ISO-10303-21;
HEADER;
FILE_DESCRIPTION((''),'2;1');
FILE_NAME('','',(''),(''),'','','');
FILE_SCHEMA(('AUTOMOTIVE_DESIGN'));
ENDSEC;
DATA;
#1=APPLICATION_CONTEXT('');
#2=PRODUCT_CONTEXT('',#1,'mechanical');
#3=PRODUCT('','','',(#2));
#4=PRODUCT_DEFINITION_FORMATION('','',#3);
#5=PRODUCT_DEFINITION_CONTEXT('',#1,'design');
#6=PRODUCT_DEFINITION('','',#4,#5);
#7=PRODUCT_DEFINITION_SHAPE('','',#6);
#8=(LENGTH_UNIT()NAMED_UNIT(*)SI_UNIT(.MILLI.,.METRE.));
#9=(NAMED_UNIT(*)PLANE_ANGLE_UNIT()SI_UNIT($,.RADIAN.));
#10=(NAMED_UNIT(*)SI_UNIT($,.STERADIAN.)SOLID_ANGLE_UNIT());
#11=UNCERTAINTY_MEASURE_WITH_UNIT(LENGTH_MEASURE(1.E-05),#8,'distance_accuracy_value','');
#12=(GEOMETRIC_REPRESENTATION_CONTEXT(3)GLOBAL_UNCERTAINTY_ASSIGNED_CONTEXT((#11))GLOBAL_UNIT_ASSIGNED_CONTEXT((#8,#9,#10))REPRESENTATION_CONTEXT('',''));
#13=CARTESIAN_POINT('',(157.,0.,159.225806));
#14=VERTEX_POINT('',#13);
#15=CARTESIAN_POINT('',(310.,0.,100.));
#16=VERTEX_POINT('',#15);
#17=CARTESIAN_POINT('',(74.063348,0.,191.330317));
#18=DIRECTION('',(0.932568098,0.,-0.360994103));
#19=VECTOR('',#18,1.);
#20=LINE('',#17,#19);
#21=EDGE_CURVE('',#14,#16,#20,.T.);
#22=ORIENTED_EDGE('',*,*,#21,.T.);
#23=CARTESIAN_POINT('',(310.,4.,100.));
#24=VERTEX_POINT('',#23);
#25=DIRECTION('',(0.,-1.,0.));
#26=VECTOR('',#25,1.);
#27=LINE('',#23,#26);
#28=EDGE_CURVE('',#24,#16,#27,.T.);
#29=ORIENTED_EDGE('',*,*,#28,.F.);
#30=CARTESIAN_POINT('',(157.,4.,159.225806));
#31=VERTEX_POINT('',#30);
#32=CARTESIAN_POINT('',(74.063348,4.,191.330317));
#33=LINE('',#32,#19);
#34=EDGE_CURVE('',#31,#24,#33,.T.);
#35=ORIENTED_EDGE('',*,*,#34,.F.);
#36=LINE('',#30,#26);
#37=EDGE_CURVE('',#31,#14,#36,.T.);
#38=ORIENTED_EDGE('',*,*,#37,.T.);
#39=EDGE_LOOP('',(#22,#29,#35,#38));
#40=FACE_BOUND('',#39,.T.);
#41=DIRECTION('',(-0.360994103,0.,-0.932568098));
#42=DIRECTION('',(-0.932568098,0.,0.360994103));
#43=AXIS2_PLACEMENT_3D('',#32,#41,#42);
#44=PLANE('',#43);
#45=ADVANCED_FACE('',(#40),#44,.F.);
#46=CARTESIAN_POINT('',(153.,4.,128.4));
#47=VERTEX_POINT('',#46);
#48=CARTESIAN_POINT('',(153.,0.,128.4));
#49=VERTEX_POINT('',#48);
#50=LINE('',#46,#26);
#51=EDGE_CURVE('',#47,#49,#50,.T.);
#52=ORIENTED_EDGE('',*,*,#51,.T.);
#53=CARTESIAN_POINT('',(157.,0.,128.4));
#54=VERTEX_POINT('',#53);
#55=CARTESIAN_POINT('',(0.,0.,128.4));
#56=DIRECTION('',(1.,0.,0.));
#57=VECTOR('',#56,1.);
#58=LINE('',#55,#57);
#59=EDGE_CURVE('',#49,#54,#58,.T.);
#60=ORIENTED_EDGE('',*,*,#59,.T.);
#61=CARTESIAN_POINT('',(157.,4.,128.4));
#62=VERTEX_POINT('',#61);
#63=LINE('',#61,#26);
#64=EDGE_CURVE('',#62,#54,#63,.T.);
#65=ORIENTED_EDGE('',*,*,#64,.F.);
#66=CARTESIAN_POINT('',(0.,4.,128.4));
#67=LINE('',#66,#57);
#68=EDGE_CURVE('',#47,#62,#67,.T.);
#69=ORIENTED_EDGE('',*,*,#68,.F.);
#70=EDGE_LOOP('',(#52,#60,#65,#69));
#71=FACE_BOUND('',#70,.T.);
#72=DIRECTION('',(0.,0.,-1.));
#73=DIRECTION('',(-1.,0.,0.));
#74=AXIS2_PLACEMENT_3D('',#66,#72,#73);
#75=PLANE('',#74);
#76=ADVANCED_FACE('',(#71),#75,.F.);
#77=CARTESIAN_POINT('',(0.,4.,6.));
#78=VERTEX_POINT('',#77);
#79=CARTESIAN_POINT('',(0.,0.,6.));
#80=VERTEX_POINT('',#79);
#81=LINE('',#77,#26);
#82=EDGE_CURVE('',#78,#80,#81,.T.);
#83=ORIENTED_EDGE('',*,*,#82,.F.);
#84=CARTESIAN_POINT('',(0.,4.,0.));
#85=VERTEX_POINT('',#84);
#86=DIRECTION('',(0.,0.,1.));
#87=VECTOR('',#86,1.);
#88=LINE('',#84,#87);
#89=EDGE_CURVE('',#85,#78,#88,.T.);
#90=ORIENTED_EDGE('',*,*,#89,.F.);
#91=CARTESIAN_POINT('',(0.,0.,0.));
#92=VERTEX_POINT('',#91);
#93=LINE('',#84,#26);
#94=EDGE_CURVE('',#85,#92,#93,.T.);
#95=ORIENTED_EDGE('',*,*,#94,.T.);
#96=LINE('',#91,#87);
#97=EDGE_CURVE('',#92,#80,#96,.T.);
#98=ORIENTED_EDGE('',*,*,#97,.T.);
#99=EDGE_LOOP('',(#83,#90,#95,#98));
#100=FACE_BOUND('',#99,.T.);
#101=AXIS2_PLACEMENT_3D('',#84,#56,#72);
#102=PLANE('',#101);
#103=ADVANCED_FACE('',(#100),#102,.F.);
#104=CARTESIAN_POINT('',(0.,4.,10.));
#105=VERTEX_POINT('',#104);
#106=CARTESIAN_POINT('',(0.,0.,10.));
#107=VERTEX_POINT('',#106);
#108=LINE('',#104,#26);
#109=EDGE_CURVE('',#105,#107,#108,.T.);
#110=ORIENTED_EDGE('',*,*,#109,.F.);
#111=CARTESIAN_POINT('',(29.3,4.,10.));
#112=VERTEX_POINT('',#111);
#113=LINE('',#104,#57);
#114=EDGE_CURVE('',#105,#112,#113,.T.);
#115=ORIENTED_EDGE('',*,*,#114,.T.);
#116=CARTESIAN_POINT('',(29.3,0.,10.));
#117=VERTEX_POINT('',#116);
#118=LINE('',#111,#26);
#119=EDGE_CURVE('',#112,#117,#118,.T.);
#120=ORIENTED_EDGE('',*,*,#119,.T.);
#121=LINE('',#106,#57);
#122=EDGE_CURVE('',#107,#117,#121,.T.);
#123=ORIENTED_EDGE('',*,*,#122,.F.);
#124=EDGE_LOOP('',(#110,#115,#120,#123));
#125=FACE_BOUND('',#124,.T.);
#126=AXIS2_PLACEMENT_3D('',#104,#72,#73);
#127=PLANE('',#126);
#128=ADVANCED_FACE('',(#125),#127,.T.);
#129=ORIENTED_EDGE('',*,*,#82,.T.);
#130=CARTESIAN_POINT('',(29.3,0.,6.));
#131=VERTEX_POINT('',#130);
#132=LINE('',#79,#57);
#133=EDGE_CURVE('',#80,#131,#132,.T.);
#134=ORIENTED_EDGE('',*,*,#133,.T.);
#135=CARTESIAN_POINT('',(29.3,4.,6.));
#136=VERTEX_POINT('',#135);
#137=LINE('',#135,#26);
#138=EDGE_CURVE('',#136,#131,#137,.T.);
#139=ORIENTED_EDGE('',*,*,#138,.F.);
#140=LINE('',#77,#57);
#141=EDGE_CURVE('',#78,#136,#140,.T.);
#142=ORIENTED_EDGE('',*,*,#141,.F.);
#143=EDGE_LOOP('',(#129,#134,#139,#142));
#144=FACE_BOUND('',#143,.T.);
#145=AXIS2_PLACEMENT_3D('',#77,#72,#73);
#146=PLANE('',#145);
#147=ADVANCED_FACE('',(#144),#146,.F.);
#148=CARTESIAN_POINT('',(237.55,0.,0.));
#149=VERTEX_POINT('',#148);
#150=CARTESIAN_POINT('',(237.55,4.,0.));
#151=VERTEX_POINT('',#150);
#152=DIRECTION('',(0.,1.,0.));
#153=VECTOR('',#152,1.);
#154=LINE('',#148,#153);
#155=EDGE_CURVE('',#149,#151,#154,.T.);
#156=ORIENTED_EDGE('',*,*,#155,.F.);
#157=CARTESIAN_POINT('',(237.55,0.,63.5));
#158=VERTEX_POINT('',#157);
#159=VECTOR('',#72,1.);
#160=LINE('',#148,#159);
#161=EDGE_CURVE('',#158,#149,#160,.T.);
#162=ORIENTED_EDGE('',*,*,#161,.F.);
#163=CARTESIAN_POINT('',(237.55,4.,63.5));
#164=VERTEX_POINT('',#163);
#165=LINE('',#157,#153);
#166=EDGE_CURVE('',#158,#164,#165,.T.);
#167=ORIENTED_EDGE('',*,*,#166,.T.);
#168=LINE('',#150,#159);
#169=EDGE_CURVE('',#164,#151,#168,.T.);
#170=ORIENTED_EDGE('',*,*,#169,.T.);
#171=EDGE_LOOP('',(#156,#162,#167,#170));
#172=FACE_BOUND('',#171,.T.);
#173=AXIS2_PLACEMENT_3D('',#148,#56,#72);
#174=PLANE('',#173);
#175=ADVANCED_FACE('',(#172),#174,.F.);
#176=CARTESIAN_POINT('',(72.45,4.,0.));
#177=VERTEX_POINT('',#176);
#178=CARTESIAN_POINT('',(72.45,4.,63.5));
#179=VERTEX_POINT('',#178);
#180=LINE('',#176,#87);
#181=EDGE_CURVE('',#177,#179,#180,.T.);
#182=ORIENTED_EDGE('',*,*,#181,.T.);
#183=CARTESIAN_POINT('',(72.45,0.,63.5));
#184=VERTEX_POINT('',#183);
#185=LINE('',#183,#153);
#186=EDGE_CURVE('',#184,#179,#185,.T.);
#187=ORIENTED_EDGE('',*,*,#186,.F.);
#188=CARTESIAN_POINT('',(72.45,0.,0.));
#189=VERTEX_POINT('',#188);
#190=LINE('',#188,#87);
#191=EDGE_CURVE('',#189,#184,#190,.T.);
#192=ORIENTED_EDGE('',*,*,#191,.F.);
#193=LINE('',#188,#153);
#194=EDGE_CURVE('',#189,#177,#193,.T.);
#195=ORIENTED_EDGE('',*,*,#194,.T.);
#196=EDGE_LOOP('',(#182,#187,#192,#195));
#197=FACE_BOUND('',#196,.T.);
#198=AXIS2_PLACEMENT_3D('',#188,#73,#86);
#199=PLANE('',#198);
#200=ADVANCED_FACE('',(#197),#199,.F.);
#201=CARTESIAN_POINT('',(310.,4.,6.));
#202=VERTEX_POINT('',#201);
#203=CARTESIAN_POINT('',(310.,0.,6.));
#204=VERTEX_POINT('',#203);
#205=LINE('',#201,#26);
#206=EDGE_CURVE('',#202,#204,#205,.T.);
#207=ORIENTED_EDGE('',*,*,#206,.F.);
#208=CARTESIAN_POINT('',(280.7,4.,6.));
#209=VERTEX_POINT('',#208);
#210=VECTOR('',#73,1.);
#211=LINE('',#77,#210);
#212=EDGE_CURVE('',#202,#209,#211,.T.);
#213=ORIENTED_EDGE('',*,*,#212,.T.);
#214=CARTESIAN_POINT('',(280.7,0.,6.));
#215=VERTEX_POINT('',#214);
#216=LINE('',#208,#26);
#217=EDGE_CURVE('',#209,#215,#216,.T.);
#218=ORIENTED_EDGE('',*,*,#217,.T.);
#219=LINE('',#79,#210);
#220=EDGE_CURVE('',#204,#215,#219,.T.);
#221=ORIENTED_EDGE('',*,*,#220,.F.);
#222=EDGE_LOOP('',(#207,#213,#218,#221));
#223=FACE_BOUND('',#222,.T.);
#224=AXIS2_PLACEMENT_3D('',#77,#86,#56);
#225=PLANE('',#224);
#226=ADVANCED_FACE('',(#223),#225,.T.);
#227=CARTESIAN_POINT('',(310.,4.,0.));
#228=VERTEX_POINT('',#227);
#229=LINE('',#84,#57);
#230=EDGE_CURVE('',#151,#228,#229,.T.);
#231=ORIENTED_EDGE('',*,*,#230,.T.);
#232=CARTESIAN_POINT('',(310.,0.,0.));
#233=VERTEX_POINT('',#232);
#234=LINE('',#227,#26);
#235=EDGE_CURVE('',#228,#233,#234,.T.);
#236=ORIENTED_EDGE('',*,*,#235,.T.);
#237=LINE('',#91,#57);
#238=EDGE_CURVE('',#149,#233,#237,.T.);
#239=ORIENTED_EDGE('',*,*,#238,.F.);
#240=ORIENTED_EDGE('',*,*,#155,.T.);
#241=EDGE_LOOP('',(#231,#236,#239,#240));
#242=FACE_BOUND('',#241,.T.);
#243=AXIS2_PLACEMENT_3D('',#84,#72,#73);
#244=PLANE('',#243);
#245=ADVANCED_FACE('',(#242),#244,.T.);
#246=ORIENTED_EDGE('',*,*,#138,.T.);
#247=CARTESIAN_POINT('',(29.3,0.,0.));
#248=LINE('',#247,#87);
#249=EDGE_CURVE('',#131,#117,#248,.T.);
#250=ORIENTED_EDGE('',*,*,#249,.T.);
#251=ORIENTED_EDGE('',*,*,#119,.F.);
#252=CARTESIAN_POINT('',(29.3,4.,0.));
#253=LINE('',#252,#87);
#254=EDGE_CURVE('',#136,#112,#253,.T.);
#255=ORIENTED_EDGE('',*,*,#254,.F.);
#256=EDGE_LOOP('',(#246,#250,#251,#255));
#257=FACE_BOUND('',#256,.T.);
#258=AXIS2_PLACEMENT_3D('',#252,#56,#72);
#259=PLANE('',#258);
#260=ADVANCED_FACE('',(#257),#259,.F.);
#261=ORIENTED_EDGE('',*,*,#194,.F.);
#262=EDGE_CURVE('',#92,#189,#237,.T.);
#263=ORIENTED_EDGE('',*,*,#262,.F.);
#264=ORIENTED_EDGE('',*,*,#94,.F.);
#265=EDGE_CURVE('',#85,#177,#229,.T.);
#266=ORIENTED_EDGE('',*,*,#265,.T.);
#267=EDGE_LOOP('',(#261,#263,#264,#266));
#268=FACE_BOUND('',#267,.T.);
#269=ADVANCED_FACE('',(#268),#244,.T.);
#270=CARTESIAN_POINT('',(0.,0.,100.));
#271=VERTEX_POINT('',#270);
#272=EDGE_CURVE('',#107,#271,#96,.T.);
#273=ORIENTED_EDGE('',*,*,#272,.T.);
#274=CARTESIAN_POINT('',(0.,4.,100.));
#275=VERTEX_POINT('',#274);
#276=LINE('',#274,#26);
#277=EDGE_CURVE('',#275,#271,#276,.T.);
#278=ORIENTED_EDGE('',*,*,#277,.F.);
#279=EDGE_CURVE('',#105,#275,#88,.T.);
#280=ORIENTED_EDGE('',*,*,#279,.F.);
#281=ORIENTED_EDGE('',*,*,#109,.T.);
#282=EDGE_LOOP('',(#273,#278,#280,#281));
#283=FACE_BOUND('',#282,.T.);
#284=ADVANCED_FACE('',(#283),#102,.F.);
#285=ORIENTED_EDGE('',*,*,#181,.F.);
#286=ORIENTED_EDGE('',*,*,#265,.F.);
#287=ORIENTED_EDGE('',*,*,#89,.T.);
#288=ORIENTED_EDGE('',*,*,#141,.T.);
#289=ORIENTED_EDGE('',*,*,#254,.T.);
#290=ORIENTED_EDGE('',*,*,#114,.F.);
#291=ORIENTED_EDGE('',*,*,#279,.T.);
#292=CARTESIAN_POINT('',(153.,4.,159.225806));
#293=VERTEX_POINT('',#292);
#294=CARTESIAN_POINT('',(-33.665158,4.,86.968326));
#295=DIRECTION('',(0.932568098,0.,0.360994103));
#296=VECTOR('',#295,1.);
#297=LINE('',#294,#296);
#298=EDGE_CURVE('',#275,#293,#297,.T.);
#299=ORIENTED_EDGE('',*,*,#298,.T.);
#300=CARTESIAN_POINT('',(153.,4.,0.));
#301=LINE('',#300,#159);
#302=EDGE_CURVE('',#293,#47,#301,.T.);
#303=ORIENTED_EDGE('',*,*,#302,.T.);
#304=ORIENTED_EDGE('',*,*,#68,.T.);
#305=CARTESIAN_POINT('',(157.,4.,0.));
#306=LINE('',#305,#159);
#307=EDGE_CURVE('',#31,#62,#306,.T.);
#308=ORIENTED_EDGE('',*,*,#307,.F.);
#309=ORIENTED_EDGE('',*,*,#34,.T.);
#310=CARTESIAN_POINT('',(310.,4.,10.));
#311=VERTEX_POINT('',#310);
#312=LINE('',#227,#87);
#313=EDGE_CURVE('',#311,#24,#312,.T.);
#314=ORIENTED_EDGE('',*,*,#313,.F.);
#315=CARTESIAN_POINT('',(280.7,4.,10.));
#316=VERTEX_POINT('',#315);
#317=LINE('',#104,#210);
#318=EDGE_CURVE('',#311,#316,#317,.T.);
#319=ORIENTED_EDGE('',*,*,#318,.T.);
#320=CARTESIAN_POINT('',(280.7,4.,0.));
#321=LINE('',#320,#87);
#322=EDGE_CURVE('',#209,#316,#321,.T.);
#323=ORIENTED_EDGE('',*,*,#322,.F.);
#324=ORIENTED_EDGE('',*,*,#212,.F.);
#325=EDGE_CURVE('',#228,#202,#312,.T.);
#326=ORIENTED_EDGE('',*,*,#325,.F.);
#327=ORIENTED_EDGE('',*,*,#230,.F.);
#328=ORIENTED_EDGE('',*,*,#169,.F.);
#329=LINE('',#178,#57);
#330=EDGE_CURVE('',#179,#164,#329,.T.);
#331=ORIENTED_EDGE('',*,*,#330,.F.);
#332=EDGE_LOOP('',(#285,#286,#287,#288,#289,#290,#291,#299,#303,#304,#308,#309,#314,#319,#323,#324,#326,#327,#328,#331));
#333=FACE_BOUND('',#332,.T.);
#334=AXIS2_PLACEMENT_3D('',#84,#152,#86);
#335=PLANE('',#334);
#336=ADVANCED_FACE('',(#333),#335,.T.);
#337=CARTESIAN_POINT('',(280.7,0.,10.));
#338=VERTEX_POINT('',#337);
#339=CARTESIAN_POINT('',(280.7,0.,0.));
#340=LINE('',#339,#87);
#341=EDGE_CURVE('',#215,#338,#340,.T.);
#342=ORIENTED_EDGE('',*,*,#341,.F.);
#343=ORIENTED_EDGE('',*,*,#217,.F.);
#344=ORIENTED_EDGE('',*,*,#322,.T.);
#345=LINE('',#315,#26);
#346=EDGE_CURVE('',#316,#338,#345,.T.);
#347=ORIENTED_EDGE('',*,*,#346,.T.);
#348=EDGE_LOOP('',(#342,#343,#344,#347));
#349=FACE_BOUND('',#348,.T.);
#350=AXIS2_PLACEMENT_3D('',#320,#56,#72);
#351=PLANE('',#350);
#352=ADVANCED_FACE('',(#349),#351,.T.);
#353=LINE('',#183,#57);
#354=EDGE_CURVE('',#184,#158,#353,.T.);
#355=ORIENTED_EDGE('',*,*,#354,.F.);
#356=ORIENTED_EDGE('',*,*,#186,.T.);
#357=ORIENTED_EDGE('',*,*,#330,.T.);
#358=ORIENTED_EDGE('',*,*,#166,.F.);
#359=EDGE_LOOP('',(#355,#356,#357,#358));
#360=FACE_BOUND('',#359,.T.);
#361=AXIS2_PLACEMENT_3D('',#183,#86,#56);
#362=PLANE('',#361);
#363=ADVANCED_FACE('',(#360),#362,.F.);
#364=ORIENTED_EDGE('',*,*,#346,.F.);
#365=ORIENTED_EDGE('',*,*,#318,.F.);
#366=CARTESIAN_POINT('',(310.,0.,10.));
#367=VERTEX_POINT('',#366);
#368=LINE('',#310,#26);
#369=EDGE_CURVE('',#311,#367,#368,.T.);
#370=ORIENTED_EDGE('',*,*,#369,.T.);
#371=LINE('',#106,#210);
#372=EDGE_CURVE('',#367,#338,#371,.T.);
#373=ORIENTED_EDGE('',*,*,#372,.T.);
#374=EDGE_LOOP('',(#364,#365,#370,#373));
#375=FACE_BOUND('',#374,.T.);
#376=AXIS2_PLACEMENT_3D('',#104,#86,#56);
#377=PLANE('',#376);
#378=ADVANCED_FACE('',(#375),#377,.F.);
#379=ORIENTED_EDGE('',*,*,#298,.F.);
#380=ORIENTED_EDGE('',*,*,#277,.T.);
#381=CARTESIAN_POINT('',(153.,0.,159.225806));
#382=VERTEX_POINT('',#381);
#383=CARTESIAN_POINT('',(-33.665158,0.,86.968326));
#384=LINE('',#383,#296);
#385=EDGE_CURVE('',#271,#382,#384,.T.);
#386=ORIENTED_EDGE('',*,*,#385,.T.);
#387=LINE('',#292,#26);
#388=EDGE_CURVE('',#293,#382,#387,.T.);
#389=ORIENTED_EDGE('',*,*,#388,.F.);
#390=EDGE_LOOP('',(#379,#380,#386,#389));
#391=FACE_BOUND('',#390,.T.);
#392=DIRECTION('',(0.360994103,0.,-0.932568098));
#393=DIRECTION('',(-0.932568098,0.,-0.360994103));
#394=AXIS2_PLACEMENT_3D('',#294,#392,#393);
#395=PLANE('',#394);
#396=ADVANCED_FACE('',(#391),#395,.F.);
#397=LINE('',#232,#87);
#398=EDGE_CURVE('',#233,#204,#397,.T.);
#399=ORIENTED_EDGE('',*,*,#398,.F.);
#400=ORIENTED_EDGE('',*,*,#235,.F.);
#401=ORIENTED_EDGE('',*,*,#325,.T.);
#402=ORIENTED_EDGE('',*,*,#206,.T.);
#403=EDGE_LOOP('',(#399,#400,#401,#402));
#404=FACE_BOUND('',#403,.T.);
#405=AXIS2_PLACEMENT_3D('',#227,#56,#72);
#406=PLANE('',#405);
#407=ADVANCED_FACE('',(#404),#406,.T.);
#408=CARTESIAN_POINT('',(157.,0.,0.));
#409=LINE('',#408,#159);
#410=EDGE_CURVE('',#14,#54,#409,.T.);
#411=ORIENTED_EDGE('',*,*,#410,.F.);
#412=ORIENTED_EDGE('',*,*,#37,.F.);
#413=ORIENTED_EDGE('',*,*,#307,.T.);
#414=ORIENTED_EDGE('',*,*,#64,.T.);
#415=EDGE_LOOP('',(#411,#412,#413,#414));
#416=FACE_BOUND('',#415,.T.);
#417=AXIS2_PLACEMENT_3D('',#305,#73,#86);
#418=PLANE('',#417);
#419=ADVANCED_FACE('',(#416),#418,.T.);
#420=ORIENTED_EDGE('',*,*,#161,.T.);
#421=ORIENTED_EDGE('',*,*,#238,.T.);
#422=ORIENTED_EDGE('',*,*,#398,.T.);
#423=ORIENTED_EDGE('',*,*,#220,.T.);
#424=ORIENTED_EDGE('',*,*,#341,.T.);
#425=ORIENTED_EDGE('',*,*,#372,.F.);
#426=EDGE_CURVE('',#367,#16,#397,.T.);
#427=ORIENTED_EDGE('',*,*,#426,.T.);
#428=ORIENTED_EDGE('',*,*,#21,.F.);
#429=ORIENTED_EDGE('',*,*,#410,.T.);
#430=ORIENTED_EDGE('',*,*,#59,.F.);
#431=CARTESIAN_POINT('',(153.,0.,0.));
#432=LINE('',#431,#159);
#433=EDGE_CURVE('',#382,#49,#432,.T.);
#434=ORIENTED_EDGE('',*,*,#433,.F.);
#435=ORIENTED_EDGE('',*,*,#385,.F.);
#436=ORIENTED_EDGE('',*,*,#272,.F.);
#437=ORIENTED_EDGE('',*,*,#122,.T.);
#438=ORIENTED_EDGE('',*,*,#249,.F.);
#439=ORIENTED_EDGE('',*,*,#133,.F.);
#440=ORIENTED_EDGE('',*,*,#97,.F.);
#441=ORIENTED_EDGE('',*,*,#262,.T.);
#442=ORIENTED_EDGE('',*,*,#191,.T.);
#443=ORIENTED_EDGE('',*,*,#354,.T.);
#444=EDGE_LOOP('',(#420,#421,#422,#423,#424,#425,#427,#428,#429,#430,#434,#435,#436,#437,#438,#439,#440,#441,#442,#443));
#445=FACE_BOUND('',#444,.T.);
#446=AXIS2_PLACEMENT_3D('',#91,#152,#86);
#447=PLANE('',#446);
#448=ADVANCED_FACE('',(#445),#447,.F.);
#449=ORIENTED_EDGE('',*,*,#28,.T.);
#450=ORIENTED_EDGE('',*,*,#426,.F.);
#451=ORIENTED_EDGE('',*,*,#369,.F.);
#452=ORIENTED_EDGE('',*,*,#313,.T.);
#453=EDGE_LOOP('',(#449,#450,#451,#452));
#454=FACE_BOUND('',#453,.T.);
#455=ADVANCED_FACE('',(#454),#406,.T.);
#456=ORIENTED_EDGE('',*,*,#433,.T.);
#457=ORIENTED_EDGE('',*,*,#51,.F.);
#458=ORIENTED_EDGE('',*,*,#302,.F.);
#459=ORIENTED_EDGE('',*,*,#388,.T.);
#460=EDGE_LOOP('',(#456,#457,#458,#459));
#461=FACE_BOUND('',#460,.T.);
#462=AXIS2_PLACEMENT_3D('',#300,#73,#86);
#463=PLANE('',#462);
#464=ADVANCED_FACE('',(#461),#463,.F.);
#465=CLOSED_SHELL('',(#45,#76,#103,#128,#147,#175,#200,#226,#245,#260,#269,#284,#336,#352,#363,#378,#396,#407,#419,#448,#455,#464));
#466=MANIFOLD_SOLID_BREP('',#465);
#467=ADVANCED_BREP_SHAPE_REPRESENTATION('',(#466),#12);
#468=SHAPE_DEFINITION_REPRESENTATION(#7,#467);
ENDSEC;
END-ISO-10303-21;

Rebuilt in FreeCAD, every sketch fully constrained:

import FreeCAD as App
import Part
import Sketcher
from FreeCAD import Vector


def add_polygon(sketch, points):
    """Adds a closed chain of lines whose ends are joined by coincident constraints."""
    first, n = sketch.GeometryCount, len(points)
    for a, b in zip(points, points[1:] + points[:1]):
        sketch.addGeometry(Part.LineSegment(App.Vector(*a, 0), App.Vector(*b, 0)), False)
    for i in range(n):
        sketch.addConstraint(Sketcher.Constraint("Coincident", first + i, 2, first + (i + 1) % n, 1))

doc = App.newDocument("Part")
body = doc.addObject("PartDesign::Body", "Body")

# Sketch on XZ plane
sketch1 = body.newObject("Sketcher::SketchObject", "Sketch")
sketch1.AttachmentSupport = (doc.getObject("XZ_Plane"), [""])
sketch1.MapMode = "FlatFace"
add_polygon(sketch1, [(310, 100), (310, 10), (280.7, 10), (280.7, 6), (310, 6), (310, 0), (0, 0), (0, 6), (29.3, 6), (29.3, 10), (0, 10), (0, 100), (153, 159.2), (153, 128.4), (157, 128.4), (157, 159.2)])  # lines 0-15
sketch1.addConstraint([
    Sketcher.Constraint("Vertical", 0),
    Sketcher.Constraint("Horizontal", 1),
    Sketcher.Constraint("Vertical", 2),
    Sketcher.Constraint("Horizontal", 3),
    Sketcher.Constraint("Vertical", 4),
    Sketcher.Constraint("Horizontal", 5),
    Sketcher.Constraint("Vertical", 6),
    Sketcher.Constraint("Horizontal", 7),
    Sketcher.Constraint("Vertical", 8),
    Sketcher.Constraint("Horizontal", 9),
    Sketcher.Constraint("Vertical", 10),
    Sketcher.Constraint("Vertical", 12),
    Sketcher.Constraint("Horizontal", 13),
    Sketcher.Constraint("Vertical", 14),
    Sketcher.Constraint("Coincident", 5, 2, -1, 1),
    Sketcher.Constraint("PointOnObject", 9, 2, -2),
    Sketcher.Constraint("Horizontal", 3, 2, 6, 2),
    Sketcher.Constraint("Horizontal", 1, 2, 8, 2),
    Sketcher.Constraint("Horizontal", 11, 2, 14, 2),
    Sketcher.Constraint("Horizontal", 10, 2, 15, 2),
    Sketcher.Constraint("Vertical", 0, 2, 3, 2),
    Sketcher.Constraint("Equal", 3, 7),
    Sketcher.Constraint("Equal", 13, 2),
    Sketcher.Constraint("Equal", 11, 15),
    Sketcher.Constraint("DistanceX", 5, 2, 5, 1, 310.0),
    Sketcher.Constraint("DistanceX", 13, 1, 13, 2, 4.0),
    Sketcher.Constraint("DistanceY", 0, 2, 0, 1, 90.0),
    Sketcher.Constraint("DistanceY", 4, 2, 4, 1, 6.0),
    Sketcher.Constraint("DistanceX", 1, 2, 1, 1, 29.3),
    Sketcher.Constraint("DistanceY", -1, 1, 12, 2, 128.4),
    Sketcher.Constraint("DistanceY", 12, 2, 12, 1, 30.825806),
])
pad1 = body.newObject("PartDesign::Pad", "Pad")
pad1.Profile = sketch1
pad1.Length = 4
pad1.Reversed = True

# Sketch on XZ plane
sketch2 = body.newObject("Sketcher::SketchObject", "Sketch001")
sketch2.AttachmentSupport = (doc.getObject("XZ_Plane"), [""])
sketch2.MapMode = "FlatFace"
sketch2.AttachmentOffset = App.Placement(Vector(0, 0, -4), App.Rotation())
add_polygon(sketch2, [(72, 0), (72, 64), (238, 64), (238, 0)])  # lines 0-3
sketch2.addConstraint([
    Sketcher.Constraint("Vertical", 0),
    Sketcher.Constraint("Horizontal", 1),
    Sketcher.Constraint("Vertical", 2),
    Sketcher.Constraint("Horizontal", 3),
    Sketcher.Constraint("PointOnObject", 2, 2, -1),
    Sketcher.Constraint("DistanceX", 1, 1, 1, 2, 165.1),
    Sketcher.Constraint("DistanceY", 0, 1, 0, 2, 63.5),
    Sketcher.Constraint("DistanceX", -1, 1, 0, 2, 72.45),
])
pocket1 = body.newObject("PartDesign::Pocket", "Pocket")
pocket1.Profile = sketch2
pocket1.Type = "ThroughAll"
pocket1.Reversed = True

doc.recompute()
